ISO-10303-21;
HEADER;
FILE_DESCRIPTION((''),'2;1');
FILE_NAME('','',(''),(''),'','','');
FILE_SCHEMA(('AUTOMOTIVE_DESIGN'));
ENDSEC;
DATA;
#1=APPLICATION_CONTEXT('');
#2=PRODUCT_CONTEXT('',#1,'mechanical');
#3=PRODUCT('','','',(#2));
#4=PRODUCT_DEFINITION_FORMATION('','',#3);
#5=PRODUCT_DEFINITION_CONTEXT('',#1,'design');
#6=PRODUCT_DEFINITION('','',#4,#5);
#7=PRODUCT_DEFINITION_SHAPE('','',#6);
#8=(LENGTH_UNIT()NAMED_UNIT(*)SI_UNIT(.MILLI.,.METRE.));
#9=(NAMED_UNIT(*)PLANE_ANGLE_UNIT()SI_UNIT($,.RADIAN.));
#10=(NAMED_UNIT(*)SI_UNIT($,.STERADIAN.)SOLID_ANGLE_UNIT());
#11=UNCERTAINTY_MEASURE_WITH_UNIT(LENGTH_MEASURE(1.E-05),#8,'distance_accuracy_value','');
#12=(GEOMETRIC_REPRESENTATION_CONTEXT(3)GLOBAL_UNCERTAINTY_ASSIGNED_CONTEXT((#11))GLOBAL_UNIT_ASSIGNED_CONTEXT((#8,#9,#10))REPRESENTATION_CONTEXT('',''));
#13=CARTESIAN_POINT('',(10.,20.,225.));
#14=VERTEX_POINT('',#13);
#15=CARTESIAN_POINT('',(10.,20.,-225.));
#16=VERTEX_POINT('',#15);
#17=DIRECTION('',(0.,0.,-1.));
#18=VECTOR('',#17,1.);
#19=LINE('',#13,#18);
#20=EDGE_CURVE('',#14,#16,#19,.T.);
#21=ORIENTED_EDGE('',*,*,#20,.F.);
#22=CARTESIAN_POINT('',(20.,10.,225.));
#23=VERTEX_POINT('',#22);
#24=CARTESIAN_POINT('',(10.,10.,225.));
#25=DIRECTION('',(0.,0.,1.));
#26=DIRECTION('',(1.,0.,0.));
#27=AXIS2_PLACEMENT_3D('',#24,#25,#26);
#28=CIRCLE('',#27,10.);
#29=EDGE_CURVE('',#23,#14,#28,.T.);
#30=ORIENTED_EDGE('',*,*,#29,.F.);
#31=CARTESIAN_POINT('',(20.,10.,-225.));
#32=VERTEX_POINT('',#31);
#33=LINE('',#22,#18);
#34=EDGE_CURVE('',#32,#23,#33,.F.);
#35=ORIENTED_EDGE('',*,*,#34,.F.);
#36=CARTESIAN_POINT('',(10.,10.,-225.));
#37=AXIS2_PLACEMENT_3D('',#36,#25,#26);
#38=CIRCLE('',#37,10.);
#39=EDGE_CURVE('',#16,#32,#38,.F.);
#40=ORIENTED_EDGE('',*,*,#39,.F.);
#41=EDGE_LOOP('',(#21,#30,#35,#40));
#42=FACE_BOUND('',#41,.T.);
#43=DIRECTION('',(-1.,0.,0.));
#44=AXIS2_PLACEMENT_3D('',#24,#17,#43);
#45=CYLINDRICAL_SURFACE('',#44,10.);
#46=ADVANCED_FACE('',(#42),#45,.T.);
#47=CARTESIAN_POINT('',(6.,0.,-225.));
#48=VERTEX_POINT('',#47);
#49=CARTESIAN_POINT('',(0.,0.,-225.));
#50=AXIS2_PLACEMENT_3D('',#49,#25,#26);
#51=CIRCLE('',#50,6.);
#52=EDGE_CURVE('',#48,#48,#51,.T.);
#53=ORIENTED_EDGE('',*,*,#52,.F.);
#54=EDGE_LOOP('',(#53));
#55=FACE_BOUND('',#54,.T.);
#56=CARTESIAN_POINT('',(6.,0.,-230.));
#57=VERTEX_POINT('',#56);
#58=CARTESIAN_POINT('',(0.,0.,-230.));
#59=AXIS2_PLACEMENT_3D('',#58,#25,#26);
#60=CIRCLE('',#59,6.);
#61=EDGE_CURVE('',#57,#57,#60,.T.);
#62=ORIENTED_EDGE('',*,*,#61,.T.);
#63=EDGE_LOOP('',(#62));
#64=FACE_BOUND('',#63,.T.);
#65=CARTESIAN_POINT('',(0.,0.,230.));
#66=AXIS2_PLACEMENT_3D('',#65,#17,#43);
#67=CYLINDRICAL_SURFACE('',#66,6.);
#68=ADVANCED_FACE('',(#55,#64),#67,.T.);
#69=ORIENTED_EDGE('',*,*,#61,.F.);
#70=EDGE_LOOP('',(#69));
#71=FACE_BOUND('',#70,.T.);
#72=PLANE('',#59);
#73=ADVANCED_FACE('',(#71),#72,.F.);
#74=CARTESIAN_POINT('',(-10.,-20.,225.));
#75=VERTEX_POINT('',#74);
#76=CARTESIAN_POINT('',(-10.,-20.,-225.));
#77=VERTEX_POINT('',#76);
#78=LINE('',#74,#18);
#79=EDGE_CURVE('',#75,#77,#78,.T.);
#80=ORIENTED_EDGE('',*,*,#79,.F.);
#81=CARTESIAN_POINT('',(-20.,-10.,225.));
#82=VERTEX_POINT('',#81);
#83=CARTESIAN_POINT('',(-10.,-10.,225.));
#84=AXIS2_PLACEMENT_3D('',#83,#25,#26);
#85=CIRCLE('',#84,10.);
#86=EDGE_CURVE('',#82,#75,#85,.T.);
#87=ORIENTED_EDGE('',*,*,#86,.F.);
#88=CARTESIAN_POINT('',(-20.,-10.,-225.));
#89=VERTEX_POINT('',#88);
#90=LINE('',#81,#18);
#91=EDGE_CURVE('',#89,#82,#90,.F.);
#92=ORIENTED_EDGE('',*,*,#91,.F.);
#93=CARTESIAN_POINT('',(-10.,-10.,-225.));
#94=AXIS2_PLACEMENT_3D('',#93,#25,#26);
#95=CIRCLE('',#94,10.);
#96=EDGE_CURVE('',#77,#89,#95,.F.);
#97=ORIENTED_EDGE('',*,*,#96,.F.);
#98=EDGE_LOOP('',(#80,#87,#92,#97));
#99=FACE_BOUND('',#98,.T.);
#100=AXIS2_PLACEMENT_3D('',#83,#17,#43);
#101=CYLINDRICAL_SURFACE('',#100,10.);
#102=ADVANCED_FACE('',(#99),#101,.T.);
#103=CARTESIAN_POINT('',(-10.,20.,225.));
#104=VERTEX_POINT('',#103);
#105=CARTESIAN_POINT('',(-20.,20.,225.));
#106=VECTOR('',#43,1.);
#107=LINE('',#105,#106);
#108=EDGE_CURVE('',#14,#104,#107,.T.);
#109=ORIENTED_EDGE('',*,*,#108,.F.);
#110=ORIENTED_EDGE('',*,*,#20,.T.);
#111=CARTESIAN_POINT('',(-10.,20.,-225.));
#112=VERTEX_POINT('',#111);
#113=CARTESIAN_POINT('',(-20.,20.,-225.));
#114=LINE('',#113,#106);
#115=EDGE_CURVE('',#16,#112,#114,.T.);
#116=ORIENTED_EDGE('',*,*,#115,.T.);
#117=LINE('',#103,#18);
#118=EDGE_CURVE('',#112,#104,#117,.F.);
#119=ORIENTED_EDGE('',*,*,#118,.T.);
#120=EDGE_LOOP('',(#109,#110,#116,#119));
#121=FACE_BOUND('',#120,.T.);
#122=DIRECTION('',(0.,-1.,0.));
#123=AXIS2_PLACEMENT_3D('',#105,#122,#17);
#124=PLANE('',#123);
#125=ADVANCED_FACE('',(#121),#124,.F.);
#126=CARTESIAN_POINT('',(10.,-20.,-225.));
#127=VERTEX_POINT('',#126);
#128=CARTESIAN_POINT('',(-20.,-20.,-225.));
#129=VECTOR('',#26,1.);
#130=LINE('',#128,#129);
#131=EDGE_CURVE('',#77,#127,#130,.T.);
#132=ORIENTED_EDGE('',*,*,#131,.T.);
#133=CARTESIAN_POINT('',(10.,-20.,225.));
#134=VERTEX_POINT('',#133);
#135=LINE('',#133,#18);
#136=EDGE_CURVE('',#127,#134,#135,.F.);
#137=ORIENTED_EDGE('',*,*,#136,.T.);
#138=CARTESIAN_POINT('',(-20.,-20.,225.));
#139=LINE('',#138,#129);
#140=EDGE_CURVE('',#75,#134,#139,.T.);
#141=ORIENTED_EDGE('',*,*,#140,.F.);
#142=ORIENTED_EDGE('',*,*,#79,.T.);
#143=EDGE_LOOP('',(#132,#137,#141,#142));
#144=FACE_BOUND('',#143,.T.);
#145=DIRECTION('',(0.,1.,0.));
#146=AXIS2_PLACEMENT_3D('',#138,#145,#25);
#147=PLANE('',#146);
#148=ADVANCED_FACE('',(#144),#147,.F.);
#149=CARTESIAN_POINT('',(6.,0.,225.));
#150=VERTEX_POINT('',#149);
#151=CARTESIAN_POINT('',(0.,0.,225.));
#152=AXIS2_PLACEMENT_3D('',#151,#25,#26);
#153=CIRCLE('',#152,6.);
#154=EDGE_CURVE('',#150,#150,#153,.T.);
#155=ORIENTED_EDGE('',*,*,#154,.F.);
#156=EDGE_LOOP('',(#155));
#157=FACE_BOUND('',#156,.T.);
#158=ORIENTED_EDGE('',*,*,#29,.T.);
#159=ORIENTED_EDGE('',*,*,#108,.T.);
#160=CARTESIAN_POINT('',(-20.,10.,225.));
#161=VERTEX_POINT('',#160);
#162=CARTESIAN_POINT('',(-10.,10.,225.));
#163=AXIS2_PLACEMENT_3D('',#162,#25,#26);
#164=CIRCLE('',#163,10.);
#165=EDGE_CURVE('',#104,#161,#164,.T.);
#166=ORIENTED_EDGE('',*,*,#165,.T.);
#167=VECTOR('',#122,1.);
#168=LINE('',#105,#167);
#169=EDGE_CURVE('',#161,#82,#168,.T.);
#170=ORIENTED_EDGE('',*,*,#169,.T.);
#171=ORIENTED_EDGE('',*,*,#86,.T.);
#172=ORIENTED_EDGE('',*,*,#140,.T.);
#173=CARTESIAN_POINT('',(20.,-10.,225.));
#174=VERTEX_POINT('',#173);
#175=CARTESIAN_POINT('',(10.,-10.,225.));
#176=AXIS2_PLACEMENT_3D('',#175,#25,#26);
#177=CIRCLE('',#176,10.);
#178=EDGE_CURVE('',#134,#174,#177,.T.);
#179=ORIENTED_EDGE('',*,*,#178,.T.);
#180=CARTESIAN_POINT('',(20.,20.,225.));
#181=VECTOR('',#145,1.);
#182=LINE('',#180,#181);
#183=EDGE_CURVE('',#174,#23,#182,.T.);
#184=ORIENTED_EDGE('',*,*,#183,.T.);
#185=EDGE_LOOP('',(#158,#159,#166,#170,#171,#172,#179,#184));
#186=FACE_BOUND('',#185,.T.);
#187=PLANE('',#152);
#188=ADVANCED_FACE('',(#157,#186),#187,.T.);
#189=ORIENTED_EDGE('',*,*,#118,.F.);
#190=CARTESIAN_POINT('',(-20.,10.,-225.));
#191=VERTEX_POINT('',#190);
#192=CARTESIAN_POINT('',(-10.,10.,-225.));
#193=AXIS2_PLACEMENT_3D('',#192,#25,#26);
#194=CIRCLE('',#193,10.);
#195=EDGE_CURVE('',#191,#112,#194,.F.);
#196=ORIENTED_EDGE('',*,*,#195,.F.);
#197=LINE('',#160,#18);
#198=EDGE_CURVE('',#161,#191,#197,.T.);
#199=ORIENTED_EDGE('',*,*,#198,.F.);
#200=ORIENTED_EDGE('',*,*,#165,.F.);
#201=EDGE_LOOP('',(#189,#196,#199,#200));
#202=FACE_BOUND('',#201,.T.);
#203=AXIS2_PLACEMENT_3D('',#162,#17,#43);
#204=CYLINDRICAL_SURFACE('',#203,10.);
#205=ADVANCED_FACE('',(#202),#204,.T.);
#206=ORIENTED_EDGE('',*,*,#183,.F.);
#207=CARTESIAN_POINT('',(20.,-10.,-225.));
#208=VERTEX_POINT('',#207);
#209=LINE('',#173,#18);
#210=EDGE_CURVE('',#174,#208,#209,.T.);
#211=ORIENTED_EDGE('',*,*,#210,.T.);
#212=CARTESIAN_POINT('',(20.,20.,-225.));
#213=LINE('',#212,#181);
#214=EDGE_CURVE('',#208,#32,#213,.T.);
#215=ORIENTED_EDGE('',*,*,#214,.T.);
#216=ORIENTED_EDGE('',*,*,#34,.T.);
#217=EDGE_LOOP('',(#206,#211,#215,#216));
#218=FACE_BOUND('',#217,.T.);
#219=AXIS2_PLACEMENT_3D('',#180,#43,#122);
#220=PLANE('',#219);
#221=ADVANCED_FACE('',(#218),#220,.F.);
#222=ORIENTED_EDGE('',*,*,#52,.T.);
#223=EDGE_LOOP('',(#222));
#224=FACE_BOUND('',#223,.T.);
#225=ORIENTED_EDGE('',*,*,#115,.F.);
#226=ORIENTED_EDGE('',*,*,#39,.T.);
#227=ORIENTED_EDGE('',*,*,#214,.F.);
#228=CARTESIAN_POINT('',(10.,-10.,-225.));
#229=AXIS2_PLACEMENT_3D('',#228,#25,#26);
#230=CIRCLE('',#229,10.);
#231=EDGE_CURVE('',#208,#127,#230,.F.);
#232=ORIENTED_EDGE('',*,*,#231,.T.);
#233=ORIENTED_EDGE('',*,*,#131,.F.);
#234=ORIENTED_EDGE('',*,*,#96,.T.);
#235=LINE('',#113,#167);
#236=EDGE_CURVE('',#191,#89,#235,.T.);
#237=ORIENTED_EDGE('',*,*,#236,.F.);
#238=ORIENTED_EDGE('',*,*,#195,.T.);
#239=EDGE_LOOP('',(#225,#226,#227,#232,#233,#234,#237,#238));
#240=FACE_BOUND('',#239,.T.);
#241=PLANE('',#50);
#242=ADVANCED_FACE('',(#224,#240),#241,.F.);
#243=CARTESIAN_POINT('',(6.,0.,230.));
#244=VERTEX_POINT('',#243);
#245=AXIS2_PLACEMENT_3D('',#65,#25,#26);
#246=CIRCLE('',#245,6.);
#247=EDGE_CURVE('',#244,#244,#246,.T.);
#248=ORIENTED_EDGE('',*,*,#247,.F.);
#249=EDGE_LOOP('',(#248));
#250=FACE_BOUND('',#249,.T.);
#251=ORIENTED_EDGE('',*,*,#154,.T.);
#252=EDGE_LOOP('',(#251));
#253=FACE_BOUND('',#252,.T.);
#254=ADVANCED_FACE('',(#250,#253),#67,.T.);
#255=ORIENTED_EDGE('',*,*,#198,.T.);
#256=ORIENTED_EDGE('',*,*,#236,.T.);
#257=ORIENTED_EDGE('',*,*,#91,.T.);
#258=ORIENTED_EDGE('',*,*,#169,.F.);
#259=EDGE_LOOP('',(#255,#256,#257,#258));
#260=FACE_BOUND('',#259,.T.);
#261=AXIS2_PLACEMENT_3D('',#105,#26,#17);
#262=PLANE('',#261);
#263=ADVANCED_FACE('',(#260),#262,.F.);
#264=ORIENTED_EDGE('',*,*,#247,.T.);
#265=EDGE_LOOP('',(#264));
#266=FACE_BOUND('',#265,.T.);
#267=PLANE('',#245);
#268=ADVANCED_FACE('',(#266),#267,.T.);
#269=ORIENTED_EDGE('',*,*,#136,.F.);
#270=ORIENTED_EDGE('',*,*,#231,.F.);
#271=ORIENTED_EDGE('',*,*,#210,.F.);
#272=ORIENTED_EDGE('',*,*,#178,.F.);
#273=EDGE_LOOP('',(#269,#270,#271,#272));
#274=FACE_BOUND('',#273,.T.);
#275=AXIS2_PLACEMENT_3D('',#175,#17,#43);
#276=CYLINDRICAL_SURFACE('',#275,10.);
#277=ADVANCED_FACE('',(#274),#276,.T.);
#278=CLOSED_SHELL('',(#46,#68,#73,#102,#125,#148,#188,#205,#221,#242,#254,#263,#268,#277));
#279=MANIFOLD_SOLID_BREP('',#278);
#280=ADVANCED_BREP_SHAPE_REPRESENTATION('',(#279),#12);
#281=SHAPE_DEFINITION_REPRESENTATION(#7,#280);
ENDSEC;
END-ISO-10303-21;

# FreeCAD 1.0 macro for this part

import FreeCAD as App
import Part
import Sketcher


def edges_at(feature, points):
    """Names of the edges that pass closest to the given points."""
    edges = feature.Shape.Edges
    near = lambda p: min(range(len(edges)), key=lambda i: edges[i].distToShape(Part.Vertex(*p))[0])
    return sorted({f"Edge{near(p) + 1}" for p in points})

doc = App.newDocument("Part")
body = doc.addObject("PartDesign::Body", "Body")

# Sketch on XY plane
sketch1 = doc.addObject("Sketcher::SketchObject", "Sketch")
body.addObject(sketch1)
sketch1.AttachmentSupport = (doc.XY_Plane, [""])
sketch1.MapMode = "FlatFace"
sketch1.addGeometry(Part.Circle(App.Vector(0, 0, 0), App.Vector(0, 0, 1), 6), False)
sketch1.addConstraint([
    Sketcher.Constraint("Coincident", 0, 3, -1, 1),
    Sketcher.Constraint("Diameter", 0, 12.0),
])
pad1 = doc.addObject("PartDesign::Pad", "Pad")
body.addObject(pad1)
pad1.Profile = sketch1
pad1.Length = 460
pad1.Midplane = True

# Sketch on XY plane
sketch2 = doc.addObject("Sketcher::SketchObject", "Sketch001")
body.addObject(sketch2)
sketch2.AttachmentSupport = (doc.XY_Plane, [""])
sketch2.MapMode = "FlatFace"
sketch2.addGeometry([
    Part.LineSegment(App.Vector(-20, 20, 0), App.Vector(-20, -20, 0)),
    Part.LineSegment(App.Vector(-20, -20, 0), App.Vector(20, -20, 0)),
    Part.LineSegment(App.Vector(20, -20, 0), App.Vector(20, 20, 0)),
    Part.LineSegment(App.Vector(20, 20, 0), App.Vector(-20, 20, 0)),
], False)
sketch2.addConstraint([
    Sketcher.Constraint("Coincident", 0, 2, 1, 1),
    Sketcher.Constraint("Coincident", 1, 2, 2, 1),
    Sketcher.Constraint("Coincident", 2, 2, 3, 1),
    Sketcher.Constraint("Coincident", 3, 2, 0, 1),
    Sketcher.Constraint("Vertical", 0),
    Sketcher.Constraint("Horizontal", 1),
    Sketcher.Constraint("Vertical", 2),
    Sketcher.Constraint("Horizontal", 3),
    Sketcher.Constraint("Symmetric", 0, 2, 2, 2, -1, 1),
    Sketcher.Constraint("Equal", 3, 0),
    Sketcher.Constraint("DistanceX", 1, 1, 1, 2, 40.0),
])
pad2 = doc.addObject("PartDesign::Pad", "Pad001")
body.addObject(pad2)
pad2.Profile = sketch2
pad2.Length = 450
pad2.Midplane = True
doc.recompute()

fillet = doc.addObject("PartDesign::Fillet", "Fillet")
body.addObject(fillet)
fillet.Base = (pad2, edges_at(pad2, [
    (20, -20, 0),
    (20, 20, 0),
    (-20, 20, 0),
    (-20, -20, 0),
]))
fillet.Radius = 10

doc.recompute()
